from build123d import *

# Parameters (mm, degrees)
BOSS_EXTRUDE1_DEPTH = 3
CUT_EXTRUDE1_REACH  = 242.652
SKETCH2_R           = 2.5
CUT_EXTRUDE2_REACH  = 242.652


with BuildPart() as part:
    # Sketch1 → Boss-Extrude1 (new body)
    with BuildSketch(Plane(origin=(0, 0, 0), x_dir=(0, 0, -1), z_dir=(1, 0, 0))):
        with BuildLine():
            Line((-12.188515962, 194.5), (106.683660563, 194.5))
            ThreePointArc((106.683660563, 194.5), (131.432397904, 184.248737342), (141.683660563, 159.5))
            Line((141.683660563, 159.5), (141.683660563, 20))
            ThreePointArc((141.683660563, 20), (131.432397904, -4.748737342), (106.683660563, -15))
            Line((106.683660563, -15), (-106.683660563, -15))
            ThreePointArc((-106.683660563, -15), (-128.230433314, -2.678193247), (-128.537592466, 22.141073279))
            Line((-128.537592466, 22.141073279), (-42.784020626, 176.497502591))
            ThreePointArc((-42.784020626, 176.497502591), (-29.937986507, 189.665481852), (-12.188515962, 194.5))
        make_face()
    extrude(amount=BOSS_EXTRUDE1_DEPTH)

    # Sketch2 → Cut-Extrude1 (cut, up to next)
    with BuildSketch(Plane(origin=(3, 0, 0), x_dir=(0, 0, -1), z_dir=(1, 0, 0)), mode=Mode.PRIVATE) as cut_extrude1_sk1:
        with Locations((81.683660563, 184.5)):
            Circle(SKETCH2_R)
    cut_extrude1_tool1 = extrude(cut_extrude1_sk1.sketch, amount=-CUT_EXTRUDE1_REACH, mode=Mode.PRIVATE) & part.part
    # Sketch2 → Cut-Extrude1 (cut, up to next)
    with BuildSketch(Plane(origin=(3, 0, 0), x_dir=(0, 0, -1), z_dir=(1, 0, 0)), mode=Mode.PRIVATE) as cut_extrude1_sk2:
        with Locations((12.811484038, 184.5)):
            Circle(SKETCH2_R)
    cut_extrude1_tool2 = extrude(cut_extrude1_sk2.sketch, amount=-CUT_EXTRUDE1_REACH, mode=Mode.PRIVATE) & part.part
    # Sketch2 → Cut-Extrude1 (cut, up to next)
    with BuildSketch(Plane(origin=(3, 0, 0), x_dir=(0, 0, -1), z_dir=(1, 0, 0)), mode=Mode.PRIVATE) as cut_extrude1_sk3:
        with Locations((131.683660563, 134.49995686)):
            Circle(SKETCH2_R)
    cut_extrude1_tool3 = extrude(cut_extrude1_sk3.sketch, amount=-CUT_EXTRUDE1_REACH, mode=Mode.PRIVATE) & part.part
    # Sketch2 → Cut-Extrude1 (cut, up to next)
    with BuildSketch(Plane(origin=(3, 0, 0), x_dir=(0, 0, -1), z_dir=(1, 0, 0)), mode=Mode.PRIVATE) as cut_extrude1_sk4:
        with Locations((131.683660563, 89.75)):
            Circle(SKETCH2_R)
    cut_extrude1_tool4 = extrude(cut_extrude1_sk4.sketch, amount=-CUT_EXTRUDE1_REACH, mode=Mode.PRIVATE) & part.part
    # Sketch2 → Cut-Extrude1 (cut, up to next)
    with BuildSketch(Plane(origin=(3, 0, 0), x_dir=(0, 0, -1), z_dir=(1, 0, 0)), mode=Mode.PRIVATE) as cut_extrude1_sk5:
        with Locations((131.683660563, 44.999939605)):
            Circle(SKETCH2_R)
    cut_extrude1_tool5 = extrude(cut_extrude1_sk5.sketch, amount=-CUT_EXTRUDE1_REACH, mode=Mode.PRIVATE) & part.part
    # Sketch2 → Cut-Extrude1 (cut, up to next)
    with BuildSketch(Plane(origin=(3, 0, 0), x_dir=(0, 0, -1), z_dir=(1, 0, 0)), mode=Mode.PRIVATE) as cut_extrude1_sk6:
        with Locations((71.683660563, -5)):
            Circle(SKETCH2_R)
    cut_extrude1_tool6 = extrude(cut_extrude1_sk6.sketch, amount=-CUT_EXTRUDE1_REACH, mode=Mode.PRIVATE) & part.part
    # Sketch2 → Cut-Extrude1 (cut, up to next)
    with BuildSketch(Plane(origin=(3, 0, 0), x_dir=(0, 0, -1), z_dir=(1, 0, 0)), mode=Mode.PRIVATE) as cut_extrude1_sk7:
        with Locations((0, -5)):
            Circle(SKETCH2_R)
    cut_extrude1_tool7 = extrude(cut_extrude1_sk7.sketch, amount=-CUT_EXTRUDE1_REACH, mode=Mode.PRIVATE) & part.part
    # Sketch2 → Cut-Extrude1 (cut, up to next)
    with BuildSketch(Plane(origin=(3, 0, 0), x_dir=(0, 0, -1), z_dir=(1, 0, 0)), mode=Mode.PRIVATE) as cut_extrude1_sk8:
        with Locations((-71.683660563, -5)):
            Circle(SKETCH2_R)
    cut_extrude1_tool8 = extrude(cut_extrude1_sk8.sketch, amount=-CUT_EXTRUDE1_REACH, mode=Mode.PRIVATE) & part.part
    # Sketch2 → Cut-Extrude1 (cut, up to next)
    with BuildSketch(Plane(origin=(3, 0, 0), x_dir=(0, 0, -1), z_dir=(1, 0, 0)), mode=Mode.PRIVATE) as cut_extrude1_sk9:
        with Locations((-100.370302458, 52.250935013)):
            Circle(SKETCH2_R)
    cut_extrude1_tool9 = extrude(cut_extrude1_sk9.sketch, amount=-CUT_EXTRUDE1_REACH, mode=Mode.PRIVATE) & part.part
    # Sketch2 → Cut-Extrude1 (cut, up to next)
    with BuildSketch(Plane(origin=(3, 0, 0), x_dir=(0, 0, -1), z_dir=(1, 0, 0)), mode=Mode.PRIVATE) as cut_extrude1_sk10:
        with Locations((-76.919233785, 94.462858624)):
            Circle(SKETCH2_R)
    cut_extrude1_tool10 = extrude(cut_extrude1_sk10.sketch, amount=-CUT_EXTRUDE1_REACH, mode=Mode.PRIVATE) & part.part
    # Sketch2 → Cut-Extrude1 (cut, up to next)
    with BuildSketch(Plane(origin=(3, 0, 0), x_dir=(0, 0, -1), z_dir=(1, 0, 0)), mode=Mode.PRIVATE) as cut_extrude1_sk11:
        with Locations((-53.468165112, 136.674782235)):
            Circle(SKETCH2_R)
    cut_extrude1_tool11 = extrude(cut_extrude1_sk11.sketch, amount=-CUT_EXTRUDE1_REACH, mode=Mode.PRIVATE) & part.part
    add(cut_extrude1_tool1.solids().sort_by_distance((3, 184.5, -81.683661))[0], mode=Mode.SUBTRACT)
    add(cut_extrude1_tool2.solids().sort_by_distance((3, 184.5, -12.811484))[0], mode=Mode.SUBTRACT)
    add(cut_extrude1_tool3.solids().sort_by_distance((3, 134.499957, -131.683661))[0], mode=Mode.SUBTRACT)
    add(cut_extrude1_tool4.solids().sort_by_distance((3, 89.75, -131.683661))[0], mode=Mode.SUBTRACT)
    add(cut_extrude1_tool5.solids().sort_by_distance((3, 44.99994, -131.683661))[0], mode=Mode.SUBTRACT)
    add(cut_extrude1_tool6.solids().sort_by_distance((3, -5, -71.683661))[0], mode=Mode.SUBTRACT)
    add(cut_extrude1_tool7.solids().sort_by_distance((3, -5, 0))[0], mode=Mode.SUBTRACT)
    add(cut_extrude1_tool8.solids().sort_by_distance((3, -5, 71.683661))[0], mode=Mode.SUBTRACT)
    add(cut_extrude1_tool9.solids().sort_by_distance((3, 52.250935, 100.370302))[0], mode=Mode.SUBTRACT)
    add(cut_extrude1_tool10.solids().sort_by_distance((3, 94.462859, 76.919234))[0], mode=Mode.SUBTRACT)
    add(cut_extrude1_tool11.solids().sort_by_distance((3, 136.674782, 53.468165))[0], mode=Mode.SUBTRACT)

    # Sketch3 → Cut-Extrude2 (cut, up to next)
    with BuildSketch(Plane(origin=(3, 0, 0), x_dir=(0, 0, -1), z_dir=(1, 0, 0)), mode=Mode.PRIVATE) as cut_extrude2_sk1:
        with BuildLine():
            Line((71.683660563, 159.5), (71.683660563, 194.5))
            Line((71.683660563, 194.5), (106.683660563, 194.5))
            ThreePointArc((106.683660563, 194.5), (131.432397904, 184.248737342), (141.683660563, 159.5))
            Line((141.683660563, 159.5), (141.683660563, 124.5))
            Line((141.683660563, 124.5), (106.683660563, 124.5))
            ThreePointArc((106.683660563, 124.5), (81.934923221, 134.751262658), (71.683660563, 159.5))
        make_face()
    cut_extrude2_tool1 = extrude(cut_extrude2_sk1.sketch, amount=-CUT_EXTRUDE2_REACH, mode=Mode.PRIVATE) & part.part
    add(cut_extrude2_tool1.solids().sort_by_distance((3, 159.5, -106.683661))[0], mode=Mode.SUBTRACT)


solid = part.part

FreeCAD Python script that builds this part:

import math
import FreeCAD as App
import Part
import Sketcher
Q = App.Units.Quantity

doc = App.newDocument("Part")
params = doc.addObject("Spreadsheet::Sheet", "Params")
for row, (alias, value) in enumerate([
    ("sketch1_radius", "35 mm"),
    ("sketch1_radius2", "25 mm"),
    ("sketch1_width", "139.5 mm"),
    ("pad1_length", "3 mm"),
    ("sketch2_diameter", "5 mm"),
    ("sketch3_diameter", "5 mm"),
    ("sketch4_diameter", "5 mm"),
    ("sketch5_diameter", "5 mm"),
    ("sketch6_diameter", "5 mm"),
    ("sketch7_diameter", "5 mm"),
    ("sketch8_diameter", "5 mm"),
    ("sketch9_diameter", "5 mm"),
    ("sketch10_diameter", "5 mm"),
    ("sketch11_diameter", "5 mm"),
    ("sketch12_diameter", "5 mm"),
    ("sketch13_radius", "35 mm"),
], start=1):
    params.set(f"A{row}", alias)
    params.set(f"B{row}", "=" + value)
    params.setAlias(f"B{row}", alias)

body = doc.addObject("PartDesign::Body", "Body")

sketch1 = doc.addObject("Sketcher::SketchObject", "Sketch")
body.addObject(sketch1)
sketch1.AttachmentSupport = (doc.YZ_Plane, [""])
sketch1.MapMode = "FlatFace"
sketch1.addGeometry(Part.LineSegment(App.Vector(194, -107, 0), App.Vector(194, 12, 0)), False)
sketch1.addGeometry(Part.ArcOfCircle(Part.Circle(App.Vector(160, 12, 0), App.Vector(0, 0, 1), 35), math.radians(0), math.radians(61)), False)
sketch1.addGeometry(Part.LineSegment(App.Vector(176, 43, 0), App.Vector(22, 129, 0)), False)
sketch1.addGeometry(Part.ArcOfCircle(Part.Circle(App.Vector(10, 107, 0), App.Vector(0, 0, 1), 25), math.radians(61), math.radians(180)), False)
sketch1.addGeometry(Part.LineSegment(App.Vector(-15, 107, 0), App.Vector(-15, -107, 0)), False)
sketch1.addGeometry(Part.ArcOfCircle(Part.Circle(App.Vector(20, -107, 0), App.Vector(0, 0, 1), 35), math.radians(180), math.radians(270)), False)
sketch1.addGeometry(Part.LineSegment(App.Vector(20, -142, 0), App.Vector(160, -142, 0)), False)
sketch1.addGeometry(Part.ArcOfCircle(Part.Circle(App.Vector(160, -107, 0), App.Vector(0, 0, 1), 35), math.radians(-90), math.radians(0)), False)
sketch1.addConstraint(Sketcher.Constraint("Tangent", 0, 2, 1, 1))
sketch1.addConstraint(Sketcher.Constraint("Tangent", 1, 2, 2, 1))
sketch1.addConstraint(Sketcher.Constraint("Tangent", 2, 2, 3, 1))
sketch1.addConstraint(Sketcher.Constraint("Tangent", 3, 2, 4, 1))
sketch1.addConstraint(Sketcher.Constraint("Tangent", 4, 2, 5, 1))
sketch1.addConstraint(Sketcher.Constraint("Tangent", 5, 2, 6, 1))
sketch1.addConstraint(Sketcher.Constraint("Tangent", 6, 2, 7, 1))
sketch1.addConstraint(Sketcher.Constraint("Tangent", 7, 2, 0, 1))
sketch1.addConstraint(Sketcher.Constraint("Vertical", 0))
sketch1.addConstraint(Sketcher.Constraint("Vertical", 4))
sketch1.addConstraint(Sketcher.Constraint("Horizontal", 6))
sketch1.addConstraint(Sketcher.Constraint("Equal", 1, 5))
sketch1.addConstraint(Sketcher.Constraint("Equal", 5, 7))
sketch1.addConstraint(Sketcher.Constraint("Radius", 1, Q("35 mm")))
sketch1.addConstraint(Sketcher.Constraint("Radius", 3, Q("25 mm")))
sketch1.addConstraint(Sketcher.Constraint("DistanceX", 6, 1, 6, 2, Q("139.5 mm")))
sketch1.addConstraint(Sketcher.Constraint("DistanceX", -1, 1, 3, 3, Q("10 mm")))
sketch1.addConstraint(Sketcher.Constraint("DistanceY", 4, 2, 4, 1, Q("213.367321 mm")))
sketch1.addConstraint(Sketcher.Constraint("Distance", 2, Q("176.577412 mm")))
sketch1.addConstraint(Sketcher.Constraint("DistanceY", -1, 1, 3, 3, Q("106.683661 mm")))
sketch1.setExpression("Constraints[13]", "Params.sketch1_radius")
sketch1.setExpression("Constraints[14]", "Params.sketch1_radius2")
sketch1.setExpression("Constraints[15]", "Params.sketch1_width")
pad1 = doc.addObject("PartDesign::Pad", "Pad")
body.addObject(pad1)
pad1.Profile = sketch1
pad1.setExpression("Length", "Params.pad1_length")

sketch2 = doc.addObject("Sketcher::SketchObject", "Sketch001")
body.addObject(sketch2)
sketch2.AttachmentSupport = (doc.YZ_Plane, [""])
sketch2.MapMode = "FlatFace"
sketch2.AttachmentOffset = App.Placement(App.Vector(0, 0, 3), App.Rotation())
sketch2.addGeometry(Part.Circle(App.Vector(184.5, -81.7, 0), App.Vector(0, 0, 1), 2.5), False)
sketch2.addConstraint(Sketcher.Constraint("Diameter", 0, Q("5 mm")))
sketch2.addConstraint(Sketcher.Constraint("DistanceX", -1, 1, 0, 3, Q("184.5 mm")))
sketch2.addConstraint(Sketcher.Constraint("DistanceY", 0, 3, -1, 1, Q("81.683661 mm")))
sketch2.setExpression("Constraints[0]", "Params.sketch2_diameter")
pocket1 = doc.addObject("PartDesign::Pocket", "Pocket")
body.addObject(pocket1)
pocket1.Profile = sketch2
pocket1.Type = "UpToFirst"

sketch3 = doc.addObject("Sketcher::SketchObject", "Sketch002")
body.addObject(sketch3)
sketch3.AttachmentSupport = (doc.YZ_Plane, [""])
sketch3.MapMode = "FlatFace"
sketch3.AttachmentOffset = App.Placement(App.Vector(0, 0, 3), App.Rotation())
sketch3.addGeometry(Part.Circle(App.Vector(184.5, -12.8, 0), App.Vector(0, 0, 1), 2.5), False)
sketch3.addConstraint(Sketcher.Constraint("Diameter", 0, Q("5 mm")))
sketch3.addConstraint(Sketcher.Constraint("DistanceX", -1, 1, 0, 3, Q("184.5 mm")))
sketch3.addConstraint(Sketcher.Constraint("DistanceY", 0, 3, -1, 1, Q("12.811484 mm")))
sketch3.setExpression("Constraints[0]", "Params.sketch3_diameter")
pocket2 = doc.addObject("PartDesign::Pocket", "Pocket001")
body.addObject(pocket2)
pocket2.Profile = sketch3
pocket2.Type = "UpToFirst"

sketch4 = doc.addObject("Sketcher::SketchObject", "Sketch003")
body.addObject(sketch4)
sketch4.AttachmentSupport = (doc.YZ_Plane, [""])
sketch4.MapMode = "FlatFace"
sketch4.AttachmentOffset = App.Placement(App.Vector(0, 0, 3), App.Rotation())
sketch4.addGeometry(Part.Circle(App.Vector(134.499957, -131.683661, 0), App.Vector(0, 0, 1), 2.5), False)
sketch4.addConstraint(Sketcher.Constraint("Diameter", 0, Q("5 mm")))
sketch4.addConstraint(Sketcher.Constraint("DistanceY", 0, 3, -1, 1, Q("131.683661 mm")))
sketch4.addConstraint(Sketcher.Constraint("DistanceX", -1, 1, 0, 3, Q("134.499957 mm")))
sketch4.setExpression("Constraints[0]", "Params.sketch4_diameter")
pocket3 = doc.addObject("PartDesign::Pocket", "Pocket002")
body.addObject(pocket3)
pocket3.Profile = sketch4
pocket3.Type = "UpToFirst"

sketch5 = doc.addObject("Sketcher::SketchObject", "Sketch004")
body.addObject(sketch5)
sketch5.AttachmentSupport = (doc.YZ_Plane, [""])
sketch5.MapMode = "FlatFace"
sketch5.AttachmentOffset = App.Placement(App.Vector(0, 0, 3), App.Rotation())
sketch5.addGeometry(Part.Circle(App.Vector(89.8, -131.7, 0), App.Vector(0, 0, 1), 2.5), False)
sketch5.addConstraint(Sketcher.Constraint("Diameter", 0, Q("5 mm")))
sketch5.addConstraint(Sketcher.Constraint("DistanceX", -1, 1, 0, 3, Q("89.75 mm")))
sketch5.addConstraint(Sketcher.Constraint("DistanceY", 0, 3, -1, 1, Q("131.683661 mm")))
sketch5.setExpression("Constraints[0]", "Params.sketch5_diameter")
pocket4 = doc.addObject("PartDesign::Pocket", "Pocket003")
body.addObject(pocket4)
pocket4.Profile = sketch5
pocket4.Type = "UpToFirst"

sketch6 = doc.addObject("Sketcher::SketchObject", "Sketch005")
body.addObject(sketch6)
sketch6.AttachmentSupport = (doc.YZ_Plane, [""])
sketch6.MapMode = "FlatFace"
sketch6.AttachmentOffset = App.Placement(App.Vector(0, 0, 3), App.Rotation())
sketch6.addGeometry(Part.Circle(App.Vector(45, -131.7, 0), App.Vector(0, 0, 1), 2.5), False)
sketch6.addConstraint(Sketcher.Constraint("Diameter", 0, Q("5 mm")))
sketch6.addConstraint(Sketcher.Constraint("DistanceX", -1, 1, 0, 3, Q("44.99994 mm")))
sketch6.addConstraint(Sketcher.Constraint("DistanceY", 0, 3, -1, 1, Q("131.683661 mm")))
sketch6.setExpression("Constraints[0]", "Params.sketch6_diameter")
pocket5 = doc.addObject("PartDesign::Pocket", "Pocket004")
body.addObject(pocket5)
pocket5.Profile = sketch6
pocket5.Type = "UpToFirst"

sketch7 = doc.addObject("Sketcher::SketchObject", "Sketch006")
body.addObject(sketch7)
sketch7.AttachmentSupport = (doc.YZ_Plane, [""])
sketch7.MapMode = "FlatFace"
sketch7.AttachmentOffset = App.Placement(App.Vector(0, 0, 3), App.Rotation())
sketch7.addGeometry(Part.Circle(App.Vector(-5, -71.7, 0), App.Vector(0, 0, 1), 2.5), False)
sketch7.addConstraint(Sketcher.Constraint("Diameter", 0, Q("5 mm")))
sketch7.addConstraint(Sketcher.Constraint("DistanceX", 0, 3, -1, 1, Q("5 mm")))
sketch7.addConstraint(Sketcher.Constraint("DistanceY", 0, 3, -1, 1, Q("71.683661 mm")))
sketch7.setExpression("Constraints[0]", "Params.sketch7_diameter")
pocket6 = doc.addObject("PartDesign::Pocket", "Pocket005")
body.addObject(pocket6)
pocket6.Profile = sketch7
pocket6.Type = "UpToFirst"

sketch8 = doc.addObject("Sketcher::SketchObject", "Sketch007")
body.addObject(sketch8)
sketch8.AttachmentSupport = (doc.YZ_Plane, [""])
sketch8.MapMode = "FlatFace"
sketch8.AttachmentOffset = App.Placement(App.Vector(0, 0, 3), App.Rotation())
sketch8.addGeometry(Part.Circle(App.Vector(-5, 0, 0), App.Vector(0, 0, 1), 2.5), False)
sketch8.addConstraint(Sketcher.Constraint("PointOnObject", 0, 3, -1))
sketch8.addConstraint(Sketcher.Constraint("Diameter", 0, Q("5 mm")))
sketch8.addConstraint(Sketcher.Constraint("DistanceX", 0, 3, -1, 1, Q("5 mm")))
sketch8.setExpression("Constraints[1]", "Params.sketch8_diameter")
pocket7 = doc.addObject("PartDesign::Pocket", "Pocket006")
body.addObject(pocket7)
pocket7.Profile = sketch8
pocket7.Type = "UpToFirst"

sketch9 = doc.addObject("Sketcher::SketchObject", "Sketch008")
body.addObject(sketch9)
sketch9.AttachmentSupport = (doc.YZ_Plane, [""])
sketch9.MapMode = "FlatFace"
sketch9.AttachmentOffset = App.Placement(App.Vector(0, 0, 3), App.Rotation())
sketch9.addGeometry(Part.Circle(App.Vector(-5, 71.7, 0), App.Vector(0, 0, 1), 2.5), False)
sketch9.addConstraint(Sketcher.Constraint("Diameter", 0, Q("5 mm")))
sketch9.addConstraint(Sketcher.Constraint("DistanceX", 0, 3, -1, 1, Q("5 mm")))
sketch9.addConstraint(Sketcher.Constraint("DistanceY", -1, 1, 0, 3, Q("71.683661 mm")))
sketch9.setExpression("Constraints[0]", "Params.sketch9_diameter")
pocket8 = doc.addObject("PartDesign::Pocket", "Pocket007")
body.addObject(pocket8)
pocket8.Profile = sketch9
pocket8.Type = "UpToFirst"

sketch10 = doc.addObject("Sketcher::SketchObject", "Sketch009")
body.addObject(sketch10)
sketch10.AttachmentSupport = (doc.YZ_Plane, [""])
sketch10.MapMode = "FlatFace"
sketch10.AttachmentOffset = App.Placement(App.Vector(0, 0, 3), App.Rotation())
sketch10.addGeometry(Part.Circle(App.Vector(52.3, 100.4, 0), App.Vector(0, 0, 1), 2.5), False)
sketch10.addConstraint(Sketcher.Constraint("Diameter", 0, Q("5 mm")))
sketch10.addConstraint(Sketcher.Constraint("DistanceX", -1, 1, 0, 3, Q("52.250935 mm")))
sketch10.addConstraint(Sketcher.Constraint("DistanceY", -1, 1, 0, 3, Q("100.370302 mm")))
sketch10.setExpression("Constraints[0]", "Params.sketch10_diameter")
pocket9 = doc.addObject("PartDesign::Pocket", "Pocket008")
body.addObject(pocket9)
pocket9.Profile = sketch10
pocket9.Type = "UpToFirst"

sketch11 = doc.addObject("Sketcher::SketchObject", "Sketch010")
body.addObject(sketch11)
sketch11.AttachmentSupport = (doc.YZ_Plane, [""])
sketch11.MapMode = "FlatFace"
sketch11.AttachmentOffset = App.Placement(App.Vector(0, 0, 3), App.Rotation())
sketch11.addGeometry(Part.Circle(App.Vector(94.5, 76.9, 0), App.Vector(0, 0, 1), 2.5), False)
sketch11.addConstraint(Sketcher.Constraint("Diameter", 0, Q("5 mm")))
sketch11.addConstraint(Sketcher.Constraint("DistanceX", -1, 1, 0, 3, Q("94.462859 mm")))
sketch11.addConstraint(Sketcher.Constraint("DistanceY", -1, 1, 0, 3, Q("76.919234 mm")))
sketch11.setExpression("Constraints[0]", "Params.sketch11_diameter")
pocket10 = doc.addObject("PartDesign::Pocket", "Pocket009")
body.addObject(pocket10)
pocket10.Profile = sketch11
pocket10.Type = "UpToFirst"

sketch12 = doc.addObject("Sketcher::SketchObject", "Sketch011")
body.addObject(sketch12)
sketch12.AttachmentSupport = (doc.YZ_Plane, [""])
sketch12.MapMode = "FlatFace"
sketch12.AttachmentOffset = App.Placement(App.Vector(0, 0, 3), App.Rotation())
sketch12.addGeometry(Part.Circle(App.Vector(136.7, 53.5, 0), App.Vector(0, 0, 1), 2.5), False)
sketch12.addConstraint(Sketcher.Constraint("Diameter", 0, Q("5 mm")))
sketch12.addConstraint(Sketcher.Constraint("DistanceX", -1, 1, 0, 3, Q("136.674782 mm")))
sketch12.addConstraint(Sketcher.Constraint("DistanceY", -1, 1, 0, 3, Q("53.468165 mm")))
sketch12.setExpression("Constraints[0]", "Params.sketch12_diameter")
pocket11 = doc.addObject("PartDesign::Pocket", "Pocket010")
body.addObject(pocket11)
pocket11.Profile = sketch12
pocket11.Type = "UpToFirst"

sketch13 = doc.addObject("Sketcher::SketchObject", "Sketch012")
body.addObject(sketch13)
sketch13.AttachmentSupport = (doc.YZ_Plane, [""])
sketch13.MapMode = "FlatFace"
sketch13.AttachmentOffset = App.Placement(App.Vector(0, 0, 3), App.Rotation())
sketch13.addGeometry(Part.LineSegment(App.Vector(194, -72, 0), App.Vector(160, -72, 0)), False)
sketch13.addGeometry(Part.ArcOfCircle(Part.Circle(App.Vector(159, -107, 0), App.Vector(0, 0, 1), 35), math.radians(90), math.radians(180)), False)
sketch13.addGeometry(Part.LineSegment(App.Vector(124, -107, 0), App.Vector(124, -142, 0)), False)
sketch13.addGeometry(Part.LineSegment(App.Vector(124, -142, 0), App.Vector(160, -142, 0)), False)
sketch13.addGeometry(Part.ArcOfCircle(Part.Circle(App.Vector(160, -107, 0), App.Vector(0, 0, 1), 35), math.radians(-90), math.radians(0)), False)
sketch13.addGeometry(Part.LineSegment(App.Vector(194, -107, 0), App.Vector(194, -72, 0)), False)
sketch13.addConstraint(Sketcher.Constraint("Tangent", 0, 2, 1, 1))
sketch13.addConstraint(Sketcher.Constraint("Tangent", 1, 2, 2, 1))
sketch13.addConstraint(Sketcher.Constraint("Coincident", 2, 2, 3, 1))
sketch13.addConstraint(Sketcher.Constraint("Tangent", 3, 2, 4, 1))
sketch13.addConstraint(Sketcher.Constraint("Tangent", 4, 2, 5, 1))
sketch13.addConstraint(Sketcher.Constraint("Coincident", 5, 2, 0, 1))
sketch13.addConstraint(Sketcher.Constraint("Horizontal", 0))
sketch13.addConstraint(Sketcher.Constraint("Vertical", 2))
sketch13.addConstraint(Sketcher.Constraint("Horizontal", 3))
sketch13.addConstraint(Sketcher.Constraint("Vertical", 5))
sketch13.addConstraint(Sketcher.Constraint("Coincident", 4, 3, 1, 3))
sketch13.addConstraint(Sketcher.Constraint("Equal", 1, 4))
sketch13.addConstraint(Sketcher.Constraint("Radius", 1, Q("35 mm")))
sketch13.addConstraint(Sketcher.Constraint("DistanceX", -1, 1, 1, 3, Q("159.5 mm")))
sketch13.addConstraint(Sketcher.Constraint("DistanceY", 1, 3, -1, 1, Q("106.683661 mm")))
sketch13.setExpression("Constraints[12]", "Params.sketch13_radius")
pocket12 = doc.addObject("PartDesign::Pocket", "Pocket011")
body.addObject(pocket12)
pocket12.Profile = sketch13
pocket12.Type = "UpToFirst"

doc.recompute()
